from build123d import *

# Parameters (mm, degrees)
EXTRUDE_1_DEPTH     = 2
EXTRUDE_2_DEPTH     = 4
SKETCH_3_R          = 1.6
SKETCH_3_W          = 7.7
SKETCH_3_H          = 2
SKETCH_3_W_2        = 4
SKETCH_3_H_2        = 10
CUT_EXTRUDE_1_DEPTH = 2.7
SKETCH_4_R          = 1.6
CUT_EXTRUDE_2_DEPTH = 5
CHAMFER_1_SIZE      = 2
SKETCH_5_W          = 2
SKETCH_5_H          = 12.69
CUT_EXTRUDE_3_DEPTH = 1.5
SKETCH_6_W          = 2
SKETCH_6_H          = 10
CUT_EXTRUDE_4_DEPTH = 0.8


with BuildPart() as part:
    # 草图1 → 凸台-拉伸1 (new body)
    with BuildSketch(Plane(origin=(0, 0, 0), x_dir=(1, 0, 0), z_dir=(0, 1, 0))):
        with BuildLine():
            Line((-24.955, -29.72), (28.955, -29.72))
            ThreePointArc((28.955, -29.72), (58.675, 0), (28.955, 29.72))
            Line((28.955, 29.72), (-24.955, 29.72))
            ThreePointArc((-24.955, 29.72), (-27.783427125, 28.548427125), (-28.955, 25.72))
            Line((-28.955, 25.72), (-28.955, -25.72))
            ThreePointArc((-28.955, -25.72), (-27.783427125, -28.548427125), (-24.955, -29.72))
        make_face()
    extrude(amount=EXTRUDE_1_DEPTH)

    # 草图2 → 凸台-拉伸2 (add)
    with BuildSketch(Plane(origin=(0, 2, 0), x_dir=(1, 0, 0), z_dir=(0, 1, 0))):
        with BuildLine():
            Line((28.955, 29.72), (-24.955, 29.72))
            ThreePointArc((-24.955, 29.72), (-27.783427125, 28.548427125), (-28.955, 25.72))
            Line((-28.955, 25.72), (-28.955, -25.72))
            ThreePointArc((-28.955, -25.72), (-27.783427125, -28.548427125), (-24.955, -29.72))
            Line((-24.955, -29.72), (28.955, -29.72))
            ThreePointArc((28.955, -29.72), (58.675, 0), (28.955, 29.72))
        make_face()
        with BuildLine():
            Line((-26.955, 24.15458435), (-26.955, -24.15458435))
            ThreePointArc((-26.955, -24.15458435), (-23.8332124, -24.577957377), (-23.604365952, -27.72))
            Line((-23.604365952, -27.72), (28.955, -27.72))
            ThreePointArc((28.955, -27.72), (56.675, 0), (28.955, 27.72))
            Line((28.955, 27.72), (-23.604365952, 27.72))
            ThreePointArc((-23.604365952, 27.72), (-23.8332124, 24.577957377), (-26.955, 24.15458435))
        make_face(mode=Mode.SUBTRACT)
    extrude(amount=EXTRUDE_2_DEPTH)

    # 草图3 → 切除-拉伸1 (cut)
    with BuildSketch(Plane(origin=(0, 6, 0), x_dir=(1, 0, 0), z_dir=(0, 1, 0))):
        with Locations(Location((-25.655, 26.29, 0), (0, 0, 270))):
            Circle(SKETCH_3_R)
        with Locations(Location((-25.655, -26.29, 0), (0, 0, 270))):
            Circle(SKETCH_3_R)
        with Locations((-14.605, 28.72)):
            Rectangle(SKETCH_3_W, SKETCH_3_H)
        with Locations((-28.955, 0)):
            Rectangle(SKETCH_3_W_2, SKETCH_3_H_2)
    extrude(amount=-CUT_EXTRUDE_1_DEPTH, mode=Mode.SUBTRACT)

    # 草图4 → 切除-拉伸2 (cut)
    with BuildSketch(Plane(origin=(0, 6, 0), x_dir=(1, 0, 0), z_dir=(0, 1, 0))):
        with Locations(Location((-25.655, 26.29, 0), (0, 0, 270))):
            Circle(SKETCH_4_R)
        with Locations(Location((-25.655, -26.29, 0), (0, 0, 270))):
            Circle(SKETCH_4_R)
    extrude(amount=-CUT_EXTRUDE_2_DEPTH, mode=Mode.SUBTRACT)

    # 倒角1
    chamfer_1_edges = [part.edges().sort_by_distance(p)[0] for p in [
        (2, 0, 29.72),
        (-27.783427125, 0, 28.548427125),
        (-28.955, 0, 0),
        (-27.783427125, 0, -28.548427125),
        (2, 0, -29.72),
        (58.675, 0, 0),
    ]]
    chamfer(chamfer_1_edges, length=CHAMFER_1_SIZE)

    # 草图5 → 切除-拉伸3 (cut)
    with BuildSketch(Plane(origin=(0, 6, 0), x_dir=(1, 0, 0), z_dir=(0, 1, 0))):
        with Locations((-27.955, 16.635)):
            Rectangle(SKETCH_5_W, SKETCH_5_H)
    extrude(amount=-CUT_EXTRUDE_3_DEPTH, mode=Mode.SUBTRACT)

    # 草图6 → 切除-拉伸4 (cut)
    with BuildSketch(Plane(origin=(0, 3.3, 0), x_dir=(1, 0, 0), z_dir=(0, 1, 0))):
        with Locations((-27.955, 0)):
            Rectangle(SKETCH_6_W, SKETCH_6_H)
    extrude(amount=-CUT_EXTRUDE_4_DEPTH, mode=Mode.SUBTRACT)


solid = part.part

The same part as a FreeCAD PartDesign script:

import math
import FreeCAD as App
import Part
import Sketcher
from FreeCAD import Vector


def edges_at(feature, points):
    """Names of the edges that pass closest to the given points."""
    edges = feature.Shape.Edges
    near = lambda p: min(range(len(edges)), key=lambda i: edges[i].distToShape(Part.Vertex(*p))[0])
    return sorted({f"Edge{near(p) + 1}" for p in points})


def add_polygon(sketch, points):
    """Adds a closed chain of lines whose ends are joined by coincident constraints."""
    first, n = sketch.GeometryCount, len(points)
    for a, b in zip(points, points[1:] + points[:1]):
        sketch.addGeometry(Part.LineSegment(App.Vector(*a, 0), App.Vector(*b, 0)), False)
    for i in range(n):
        sketch.addConstraint(Sketcher.Constraint("Coincident", first + i, 2, first + (i + 1) % n, 1))

doc = App.newDocument("Part")
body = doc.addObject("PartDesign::Body", "Body")

sketch1 = body.newObject("Sketcher::SketchObject", "Sketch")
sketch1.AttachmentSupport = (doc.getObject("XZ_Plane"), [""])
sketch1.MapMode = "FlatFace"
sketch1.addGeometry([
    Part.LineSegment(Vector(-24.955, 29.72, 0), Vector(28.955, 29.72, 0)),
    Part.ArcOfCircle(Part.Circle(Vector(28.955, 0, 0), Vector(0, 0, 1), 29.72), math.radians(-90), math.radians(90)),
    Part.LineSegment(Vector(28.955, -29.72, 0), Vector(-24.955, -29.72, 0)),
    Part.ArcOfCircle(Part.Circle(Vector(-24.955, -25.72, 0), Vector(0, 0, 1), 4), math.radians(180), math.radians(270)),
    Part.LineSegment(Vector(-28.955, -25.72, 0), Vector(-28.955, 25.72, 0)),
    Part.ArcOfCircle(Part.Circle(Vector(-24.955, 25.72, 0), Vector(0, 0, 1), 4), math.radians(90), math.radians(180)),
], False)
sketch1.addConstraint([
    Sketcher.Constraint("Tangent", 0, 2, 1, 2),
    Sketcher.Constraint("Tangent", 1, 1, 2, 1),
    Sketcher.Constraint("Tangent", 2, 2, 3, 2),
    Sketcher.Constraint("Tangent", 3, 1, 4, 1),
    Sketcher.Constraint("Tangent", 4, 2, 5, 2),
    Sketcher.Constraint("Tangent", 5, 1, 0, 1),
    Sketcher.Constraint("Horizontal", 0),
    Sketcher.Constraint("Horizontal", 2),
    Sketcher.Constraint("Vertical", 4),
    Sketcher.Constraint("Equal", 3, 5),
    Sketcher.Constraint("PointOnObject", 1, 3, -1),
    Sketcher.Constraint("Radius", 3, 4.0),
    Sketcher.Constraint("Radius", 1, 29.72),
    Sketcher.Constraint("DistanceX", 0, 1, 0, 2, 53.91),
    Sketcher.Constraint("DistanceX", -1, 1, 1, 3, 28.955),
])
pad1 = body.newObject("PartDesign::Pad", "Pad")
pad1.Profile = sketch1
pad1.Length = 2
pad1.Reversed = True

sketch2 = body.newObject("Sketcher::SketchObject", "Sketch001")
sketch2.AttachmentSupport = (doc.getObject("XZ_Plane"), [""])
sketch2.MapMode = "FlatFace"
sketch2.AttachmentOffset = App.Placement(Vector(0, 0, -2), App.Rotation())
sketch2.addGeometry([
    Part.LineSegment(Vector(28.955, -29.72, 0), Vector(-24.955, -29.72, 0)),
    Part.ArcOfCircle(Part.Circle(Vector(-24.955, -25.72, 0), Vector(0, 0, 1), 4), math.radians(180), math.radians(270)),
    Part.LineSegment(Vector(-28.955, -25.72, 0), Vector(-28.955, 25.72, 0)),
    Part.ArcOfCircle(Part.Circle(Vector(-24.955, 25.72, 0), Vector(0, 0, 1), 4), math.radians(90), math.radians(180)),
    Part.LineSegment(Vector(-24.955, 29.72, 0), Vector(28.955, 29.72, 0)),
    Part.ArcOfCircle(Part.Circle(Vector(28.955, 0, 0), Vector(0, 0, 1), 29.72), math.radians(-90), math.radians(90)),
    Part.LineSegment(Vector(-26.955, 24.154584, 0), Vector(-26.955, -24.154584, 0)),
    Part.ArcOfCircle(Part.Circle(Vector(-25.655, -26.29, 0), Vector(0, 0, 1), 2.5), math.radians(-34.88981), math.radians(121.332252)),
    Part.LineSegment(Vector(-23.604366, -27.72, 0), Vector(28.955, -27.72, 0)),
    Part.ArcOfCircle(Part.Circle(Vector(28.955, 0, 0), Vector(0, 0, 1), 27.72), math.radians(-90), math.radians(90)),
    Part.LineSegment(Vector(28.955, 27.72, 0), Vector(-23.604366, 27.72, 0)),
    Part.ArcOfCircle(Part.Circle(Vector(-25.655, 26.29, 0), Vector(0, 0, 1), 2.5), math.radians(-121.332252), math.radians(34.88981)),
], False)
sketch2.addConstraint([
    Sketcher.Constraint("Tangent", 0, 2, 1, 2),
    Sketcher.Constraint("Tangent", 1, 1, 2, 1),
    Sketcher.Constraint("Tangent", 2, 2, 3, 2),
    Sketcher.Constraint("Tangent", 3, 1, 4, 1),
    Sketcher.Constraint("Tangent", 4, 2, 5, 2),
    Sketcher.Constraint("Tangent", 5, 1, 0, 1),
    Sketcher.Constraint("Coincident", 6, 2, 7, 2),
    Sketcher.Constraint("Coincident", 7, 1, 8, 1),
    Sketcher.Constraint("Tangent", 8, 2, 9, 1),
    Sketcher.Constraint("Tangent", 9, 2, 10, 1),
    Sketcher.Constraint("Coincident", 10, 2, 11, 2),
    Sketcher.Constraint("Coincident", 11, 1, 6, 1),
    Sketcher.Constraint("Horizontal", 0),
    Sketcher.Constraint("Vertical", 2),
    Sketcher.Constraint("Horizontal", 4),
    Sketcher.Constraint("Vertical", 6),
    Sketcher.Constraint("Horizontal", 8),
    Sketcher.Constraint("Horizontal", 10),
    Sketcher.Constraint("Coincident", 9, 3, 5, 3),
    Sketcher.Constraint("Equal", 1, 3),
    Sketcher.Constraint("Equal", 7, 11),
    Sketcher.Constraint("Symmetric", 7, 3, 11, 3, -1),
    Sketcher.Constraint("PointOnObject", 5, 3, -1),
    Sketcher.Constraint("Radius", 1, 4.0),
    Sketcher.Constraint("Radius", 7, 2.5),
    Sketcher.Constraint("Radius", 5, 29.72),
    Sketcher.Constraint("Radius", 9, 27.72),
    Sketcher.Constraint("DistanceX", 6, 2, 1, 3, 2.0),
    Sketcher.Constraint("DistanceX", 0, 2, 0, 1, 53.91),
    Sketcher.Constraint("DistanceX", 7, 3, 1, 3, 0.7),
    Sketcher.Constraint("DistanceY", 7, 3, -1, 1, 26.29),
    Sketcher.Constraint("DistanceX", 1, 3, -1, 1, 24.955),
])
pad2 = body.newObject("PartDesign::Pad", "Pad001")
pad2.Profile = sketch2
pad2.Length = 4
pad2.Reversed = True

sketch3 = body.newObject("Sketcher::SketchObject", "Sketch002")
sketch3.AttachmentSupport = (doc.getObject("XZ_Plane"), [""])
sketch3.MapMode = "FlatFace"
sketch3.AttachmentOffset = App.Placement(Vector(0, 0, -6), App.Rotation())
sketch3.addGeometry(Part.Circle(Vector(-25.655, -26.29, 0), Vector(0, 0, 1), 1.6), False)
sketch3.addGeometry(Part.Circle(Vector(-25.655, 26.29, 0), Vector(0, 0, 1), 1.6), False)
add_polygon(sketch3, [(-18.455, -29.72), (-18.455, -27.72), (-10.755, -27.72), (-10.755, -29.72)])
add_polygon(sketch3, [(-30.955, -5), (-30.955, 5), (-26.955, 5), (-26.955, -5)])
sketch3.addConstraint([
    Sketcher.Constraint("Vertical", 2),
    Sketcher.Constraint("Horizontal", 3),
    Sketcher.Constraint("Vertical", 4),
    Sketcher.Constraint("Horizontal", 5),
    Sketcher.Constraint("Vertical", 6),
    Sketcher.Constraint("Horizontal", 7),
    Sketcher.Constraint("Vertical", 8),
    Sketcher.Constraint("Horizontal", 9),
    Sketcher.Constraint("Equal", 0, 1),
    Sketcher.Constraint("Symmetric", 0, 3, 1, 3, -1),
    Sketcher.Constraint("Diameter", 0, 3.2),
    Sketcher.Constraint("DistanceX", 7, 1, 7, 2, 4.0),
    Sketcher.Constraint("DistanceY", 2, 1, 2, 2, 2.0),
    Sketcher.Constraint("DistanceY", 6, 1, 6, 2, 10.0),
    Sketcher.Constraint("DistanceX", 3, 1, 3, 2, 7.7),
    Sketcher.Constraint("DistanceY", -1, 1, 6, 2, 5.0),
    Sketcher.Constraint("DistanceX", 0, 3, 2, 2, 7.2),
    Sketcher.Constraint("DistanceX", 6, 2, 1, 3, 5.3),
    Sketcher.Constraint("DistanceY", 0, 3, -1, 1, 26.29),
    Sketcher.Constraint("DistanceY", 2, 2, -1, 1, 27.72),
    Sketcher.Constraint("DistanceX", 0, 3, -1, 1, 25.655),
])
pocket1 = body.newObject("PartDesign::Pocket", "Pocket")
pocket1.Profile = sketch3
pocket1.Length = 2.7
pocket1.Reversed = True

sketch4 = body.newObject("Sketcher::SketchObject", "Sketch003")
sketch4.AttachmentSupport = (doc.getObject("XZ_Plane"), [""])
sketch4.MapMode = "FlatFace"
sketch4.AttachmentOffset = App.Placement(Vector(0, 0, -6), App.Rotation())
sketch4.addGeometry([
    Part.Circle(Vector(-25.655, -26.29, 0), Vector(0, 0, 1), 1.6),
    Part.Circle(Vector(-25.655, 26.29, 0), Vector(0, 0, 1), 1.6),
], False)
sketch4.addConstraint([
    Sketcher.Constraint("Equal", 0, 1),
    Sketcher.Constraint("Symmetric", 0, 3, 1, 3, -1),
    Sketcher.Constraint("Diameter", 0, 3.2),
    Sketcher.Constraint("DistanceY", 0, 3, -1, 1, 26.29),
    Sketcher.Constraint("DistanceX", 0, 3, -1, 1, 25.655),
])
pocket2 = body.newObject("PartDesign::Pocket", "Pocket001")
pocket2.Profile = sketch4
pocket2.Length = 5
pocket2.Reversed = True
doc.recompute()

chamfer = body.newObject("PartDesign::Chamfer", "Chamfer")
chamfer.Base = (pocket2, edges_at(pocket2, [
    (2, 0, 29.72),
    (-27.783, 0, 28.548),
    (-28.955, 0, 0),
    (-27.783, 0, -28.548),
    (2, 0, -29.72),
    (58.675, 0, 0),
]))
chamfer.Size = 2

sketch5 = body.newObject("Sketcher::SketchObject", "Sketch004")
sketch5.AttachmentSupport = (doc.getObject("XZ_Plane"), [""])
sketch5.MapMode = "FlatFace"
sketch5.AttachmentOffset = App.Placement(Vector(0, 0, -6), App.Rotation())
add_polygon(sketch5, [(-28.955, -22.98), (-28.955, -10.29), (-26.955, -10.29), (-26.955, -22.98)])
sketch5.addConstraint([
    Sketcher.Constraint("Vertical", 0),
    Sketcher.Constraint("Horizontal", 1),
    Sketcher.Constraint("Vertical", 2),
    Sketcher.Constraint("Horizontal", 3),
    Sketcher.Constraint("DistanceX", 1, 1, 1, 2, 2.0),
    Sketcher.Constraint("DistanceY", 0, 1, 0, 2, 12.69),
    Sketcher.Constraint("DistanceY", 0, 2, -1, 1, 10.29),
    Sketcher.Constraint("DistanceX", 0, 2, -1, 1, 28.955),
])
pocket3 = body.newObject("PartDesign::Pocket", "Pocket002")
pocket3.Profile = sketch5
pocket3.Length = 1.5
pocket3.Reversed = True

sketch6 = body.newObject("Sketcher::SketchObject", "Sketch005")
sketch6.AttachmentSupport = (doc.getObject("XZ_Plane"), [""])
sketch6.MapMode = "FlatFace"
sketch6.AttachmentOffset = App.Placement(Vector(0, 0, -3.3), App.Rotation())
add_polygon(sketch6, [(-28.955, -5), (-28.955, 5), (-26.955, 5), (-26.955, -5)])
sketch6.addConstraint([
    Sketcher.Constraint("Vertical", 0),
    Sketcher.Constraint("Horizontal", 1),
    Sketcher.Constraint("Vertical", 2),
    Sketcher.Constraint("Horizontal", 3),
    Sketcher.Constraint("DistanceX", 1, 1, 1, 2, 2.0),
    Sketcher.Constraint("DistanceY", 0, 1, 0, 2, 10.0),
    Sketcher.Constraint("DistanceY", -1, 1, 0, 2, 5.0),
    Sketcher.Constraint("DistanceX", 0, 2, -1, 1, 28.955),
])
pocket4 = body.newObject("PartDesign::Pocket", "Pocket003")
pocket4.Profile = sketch6
pocket4.Length = 0.8
pocket4.Reversed = True

doc.recompute()
